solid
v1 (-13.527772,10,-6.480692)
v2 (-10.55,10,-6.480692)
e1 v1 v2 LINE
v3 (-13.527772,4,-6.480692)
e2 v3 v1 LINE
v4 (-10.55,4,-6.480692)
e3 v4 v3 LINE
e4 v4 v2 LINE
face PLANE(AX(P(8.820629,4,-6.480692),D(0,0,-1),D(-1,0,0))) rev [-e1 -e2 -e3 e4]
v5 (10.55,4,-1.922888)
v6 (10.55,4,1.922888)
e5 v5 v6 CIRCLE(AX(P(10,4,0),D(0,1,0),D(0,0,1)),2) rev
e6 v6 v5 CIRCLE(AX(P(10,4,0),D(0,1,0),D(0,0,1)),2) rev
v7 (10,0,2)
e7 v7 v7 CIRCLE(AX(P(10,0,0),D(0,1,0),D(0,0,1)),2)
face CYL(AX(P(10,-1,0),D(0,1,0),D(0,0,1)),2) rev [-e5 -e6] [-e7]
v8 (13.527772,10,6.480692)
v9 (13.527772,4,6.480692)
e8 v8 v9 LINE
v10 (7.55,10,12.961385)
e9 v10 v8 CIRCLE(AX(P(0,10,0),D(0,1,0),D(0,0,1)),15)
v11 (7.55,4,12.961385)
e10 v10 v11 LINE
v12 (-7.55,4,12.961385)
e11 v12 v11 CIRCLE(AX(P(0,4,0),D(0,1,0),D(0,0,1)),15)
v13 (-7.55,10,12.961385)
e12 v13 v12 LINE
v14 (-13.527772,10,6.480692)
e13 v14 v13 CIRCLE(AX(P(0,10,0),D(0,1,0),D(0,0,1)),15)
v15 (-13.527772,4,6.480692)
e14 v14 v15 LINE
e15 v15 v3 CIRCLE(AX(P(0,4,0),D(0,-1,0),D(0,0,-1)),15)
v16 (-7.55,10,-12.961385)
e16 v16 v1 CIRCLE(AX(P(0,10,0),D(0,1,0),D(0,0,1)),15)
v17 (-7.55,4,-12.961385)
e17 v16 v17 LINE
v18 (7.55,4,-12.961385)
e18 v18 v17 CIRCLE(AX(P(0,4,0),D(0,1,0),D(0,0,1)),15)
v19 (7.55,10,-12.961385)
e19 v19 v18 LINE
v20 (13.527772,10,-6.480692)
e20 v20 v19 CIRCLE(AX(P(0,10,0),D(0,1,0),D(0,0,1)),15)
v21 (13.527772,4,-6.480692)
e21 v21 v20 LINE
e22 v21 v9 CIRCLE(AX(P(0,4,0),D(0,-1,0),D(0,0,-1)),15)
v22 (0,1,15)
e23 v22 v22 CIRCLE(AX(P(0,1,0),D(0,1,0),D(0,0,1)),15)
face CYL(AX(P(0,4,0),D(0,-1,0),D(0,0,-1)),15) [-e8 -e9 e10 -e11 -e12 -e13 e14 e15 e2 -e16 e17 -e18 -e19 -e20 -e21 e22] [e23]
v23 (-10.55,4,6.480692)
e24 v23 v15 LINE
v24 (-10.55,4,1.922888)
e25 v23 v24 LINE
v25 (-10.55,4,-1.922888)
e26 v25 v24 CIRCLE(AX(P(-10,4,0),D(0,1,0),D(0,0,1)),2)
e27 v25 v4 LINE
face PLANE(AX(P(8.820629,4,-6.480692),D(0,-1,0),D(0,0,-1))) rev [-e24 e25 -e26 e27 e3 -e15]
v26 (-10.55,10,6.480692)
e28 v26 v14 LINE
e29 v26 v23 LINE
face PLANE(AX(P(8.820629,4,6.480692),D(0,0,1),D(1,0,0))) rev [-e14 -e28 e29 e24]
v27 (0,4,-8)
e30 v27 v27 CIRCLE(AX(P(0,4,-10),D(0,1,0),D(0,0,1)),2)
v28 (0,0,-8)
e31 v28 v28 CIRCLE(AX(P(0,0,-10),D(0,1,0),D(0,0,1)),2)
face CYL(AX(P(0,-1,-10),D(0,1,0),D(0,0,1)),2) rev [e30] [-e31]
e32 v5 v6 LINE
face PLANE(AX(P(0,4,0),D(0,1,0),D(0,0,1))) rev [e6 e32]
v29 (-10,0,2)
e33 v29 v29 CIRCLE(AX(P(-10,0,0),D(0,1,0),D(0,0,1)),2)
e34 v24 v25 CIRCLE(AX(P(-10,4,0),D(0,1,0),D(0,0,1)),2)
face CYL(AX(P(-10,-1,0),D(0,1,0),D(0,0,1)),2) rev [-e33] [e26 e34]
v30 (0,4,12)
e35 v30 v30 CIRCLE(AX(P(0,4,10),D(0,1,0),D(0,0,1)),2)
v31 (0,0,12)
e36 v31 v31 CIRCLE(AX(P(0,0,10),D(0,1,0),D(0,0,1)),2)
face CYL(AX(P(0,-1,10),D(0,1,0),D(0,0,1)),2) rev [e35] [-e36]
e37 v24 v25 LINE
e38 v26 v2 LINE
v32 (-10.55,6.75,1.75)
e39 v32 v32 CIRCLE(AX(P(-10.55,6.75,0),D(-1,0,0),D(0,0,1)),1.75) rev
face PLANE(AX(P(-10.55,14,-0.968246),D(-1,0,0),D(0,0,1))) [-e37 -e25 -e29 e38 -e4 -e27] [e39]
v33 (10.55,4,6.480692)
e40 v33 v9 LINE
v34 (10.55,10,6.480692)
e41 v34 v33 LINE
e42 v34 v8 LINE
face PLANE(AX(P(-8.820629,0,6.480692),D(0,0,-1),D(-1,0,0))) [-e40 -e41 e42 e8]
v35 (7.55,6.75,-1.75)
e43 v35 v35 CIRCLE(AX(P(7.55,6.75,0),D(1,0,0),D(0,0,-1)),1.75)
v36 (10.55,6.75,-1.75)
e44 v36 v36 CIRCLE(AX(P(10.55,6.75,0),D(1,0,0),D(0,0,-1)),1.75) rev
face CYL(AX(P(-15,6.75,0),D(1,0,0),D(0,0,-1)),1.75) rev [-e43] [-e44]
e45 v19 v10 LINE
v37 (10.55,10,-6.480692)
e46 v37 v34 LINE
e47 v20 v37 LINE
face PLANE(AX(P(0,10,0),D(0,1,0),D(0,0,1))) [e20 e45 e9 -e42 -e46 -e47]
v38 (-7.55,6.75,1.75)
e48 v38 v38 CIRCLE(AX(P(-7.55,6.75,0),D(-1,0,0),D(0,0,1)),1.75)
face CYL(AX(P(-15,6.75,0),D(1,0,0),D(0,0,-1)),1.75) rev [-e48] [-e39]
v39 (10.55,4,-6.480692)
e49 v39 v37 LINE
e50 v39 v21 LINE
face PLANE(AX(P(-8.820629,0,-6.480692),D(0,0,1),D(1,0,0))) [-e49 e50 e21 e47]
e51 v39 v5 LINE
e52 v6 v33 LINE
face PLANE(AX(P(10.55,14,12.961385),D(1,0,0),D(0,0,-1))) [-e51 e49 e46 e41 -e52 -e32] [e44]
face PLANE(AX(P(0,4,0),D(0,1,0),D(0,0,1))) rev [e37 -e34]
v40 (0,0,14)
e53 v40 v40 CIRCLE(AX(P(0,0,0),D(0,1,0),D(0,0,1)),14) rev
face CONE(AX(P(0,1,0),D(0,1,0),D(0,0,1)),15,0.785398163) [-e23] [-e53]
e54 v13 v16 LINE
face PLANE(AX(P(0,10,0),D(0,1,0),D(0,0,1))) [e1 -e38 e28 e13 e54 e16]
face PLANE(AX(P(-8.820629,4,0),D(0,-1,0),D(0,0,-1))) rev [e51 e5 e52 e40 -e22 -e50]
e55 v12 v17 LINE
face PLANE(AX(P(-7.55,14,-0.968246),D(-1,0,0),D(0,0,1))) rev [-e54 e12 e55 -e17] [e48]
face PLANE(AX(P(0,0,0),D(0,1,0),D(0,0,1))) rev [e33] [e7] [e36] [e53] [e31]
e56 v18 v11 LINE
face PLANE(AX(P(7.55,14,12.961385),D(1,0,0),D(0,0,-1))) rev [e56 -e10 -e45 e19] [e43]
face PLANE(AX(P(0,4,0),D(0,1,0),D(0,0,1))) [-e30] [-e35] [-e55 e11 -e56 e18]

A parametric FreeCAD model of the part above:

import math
import FreeCAD as App
import Part
import Sketcher
from FreeCAD import Vector
Q = App.Units.Quantity


def edges_at(feature, points):
    """Names of the edges that pass closest to the given points."""
    edges = feature.Shape.Edges
    near = lambda p: min(range(len(edges)), key=lambda i: edges[i].distToShape(Part.Vertex(*p))[0])
    return sorted({f"Edge{near(p) + 1}" for p in points})


def add_polygon(sketch, points):
    """Adds a closed chain of lines whose ends are joined by coincident constraints."""
    first, n = sketch.GeometryCount, len(points)
    for a, b in zip(points, points[1:] + points[:1]):
        sketch.addGeometry(Part.LineSegment(App.Vector(*a, 0), App.Vector(*b, 0)), False)
    for i in range(n):
        sketch.addConstraint(Sketcher.Constraint("Coincident", first + i, 2, first + (i + 1) % n, 1))

doc = App.newDocument("Part")
body = doc.addObject("PartDesign::Body", "Body")

sketch1 = body.newObject("Sketcher::SketchObject", "Sketch")
sketch1.AttachmentSupport = (doc.getObject("XZ_Plane"), [""])
sketch1.MapMode = "FlatFace"
sketch1.addGeometry(Part.Circle(Vector(0, 0, 0), Vector(0, 0, 1), 15), False)
sketch1.addConstraint([
    Sketcher.Constraint("Coincident", 0, 3, -1, 1),
    Sketcher.Constraint("Diameter", 0, Q("30 mm")),
])
pad1 = body.newObject("PartDesign::Pad", "Pad")
pad1.Profile = sketch1
pad1.Length = 4
pad1.Reversed = True

sketch2 = body.newObject("Sketcher::SketchObject", "Sketch001")
sketch2.AttachmentSupport = (doc.getObject("XZ_Plane"), [""])
sketch2.MapMode = "FlatFace"
sketch2.AttachmentOffset = App.Placement(Vector(0, 0, -4), App.Rotation())
sketch2.addGeometry([
    Part.Circle(Vector(-10, 0, 0), Vector(0, 0, 1), 2),
    Part.Circle(Vector(0, -10, 0), Vector(0, 0, 1), 2),
    Part.Circle(Vector(10, 0, 0), Vector(0, 0, 1), 2),
    Part.Circle(Vector(0, 10, 0), Vector(0, 0, 1), 2),
], False)
sketch2.addConstraint([
    Sketcher.Constraint("Equal", 0, 1),
    Sketcher.Constraint("Equal", 1, 2),
    Sketcher.Constraint("Equal", 2, 3),
    Sketcher.Constraint("Symmetric", 0, 3, 2, 3, -1, 1),
    Sketcher.Constraint("Symmetric", 1, 3, 3, 3, -1, 1),
    Sketcher.Constraint("PointOnObject", 0, 3, -1),
    Sketcher.Constraint("PointOnObject", 1, 3, -2),
    Sketcher.Constraint("Diameter", 0, Q("4 mm")),
    Sketcher.Constraint("DistanceX", 0, 3, -1, 1, Q("10 mm")),
    Sketcher.Constraint("DistanceY", 1, 3, -1, 1, Q("10 mm")),
])
pocket1 = body.newObject("PartDesign::Pocket", "Pocket")
pocket1.Profile = sketch2
pocket1.Length = 5
pocket1.Reversed = True

sketch3 = body.newObject("Sketcher::SketchObject", "Sketch002")
sketch3.AttachmentSupport = (doc.getObject("XZ_Plane"), [""])
sketch3.MapMode = "FlatFace"
sketch3.AttachmentOffset = App.Placement(Vector(0, 0, -4), App.Rotation())
sketch3.addGeometry([
    Part.LineSegment(Vector(-7.5, 13, 0), Vector(-7.5, -13, 0)),
    Part.ArcOfCircle(Part.Circle(Vector(0, 0, 0), Vector(0, 0, 1), 15), math.radians(120), math.radians(240)),
    Part.LineSegment(Vector(7.5, 1, 0), Vector(7.5, 13, 0)),
    Part.ArcOfCircle(Part.Circle(Vector(0, 0, 0), Vector(0, 0, 1), 15), math.radians(-60), math.radians(60)),
    Part.LineSegment(Vector(7.5, -13, 0), Vector(7.5, -1, 0)),
    Part.LineSegment(Vector(7.5, -1, 0), Vector(7.5, 1, 0)),
], False)
sketch3.addConstraint([
    Sketcher.Constraint("Coincident", 0, 1, 1, 1),
    Sketcher.Constraint("Coincident", 1, 2, 0, 2),
    Sketcher.Constraint("Coincident", 2, 2, 3, 2),
    Sketcher.Constraint("Coincident", 3, 1, 4, 1),
    Sketcher.Constraint("Coincident", 4, 2, 5, 1),
    Sketcher.Constraint("Coincident", 5, 2, 2, 1),
    Sketcher.Constraint("Vertical", 0),
    Sketcher.Constraint("Vertical", 2),
    Sketcher.Constraint("Vertical", 4),
    Sketcher.Constraint("Vertical", 5),
    Sketcher.Constraint("Coincident", 1, 3, -1, 1),
    Sketcher.Constraint("Coincident", 3, 3, -1, 1),
    Sketcher.Constraint("Equal", 1, 3),
    Sketcher.Constraint("Horizontal", 0, 1, 2, 2),
    Sketcher.Constraint("Equal", 2, 4),
    Sketcher.Constraint("Radius", 1, Q("15 mm")),
    Sketcher.Constraint("DistanceX", 0, 1, 2, 2, Q("15.1 mm")),
    Sketcher.Constraint("DistanceY", 2, 1, 2, 2, Q("11.993139 mm")),
])
pad2 = body.newObject("PartDesign::Pad", "Pad001")
pad2.Profile = sketch3
pad2.Length = 10
pad2.Reversed = True
doc.recompute()

chamfer = body.newObject("PartDesign::Chamfer", "Chamfer")
chamfer.Base = (pad2, edges_at(pad2, [(0, 0, -15)]))
chamfer.Size = 1

sketch4 = body.newObject("Sketcher::SketchObject", "Sketch003")
sketch4.AttachmentSupport = (doc.getObject("YZ_Plane"), [""])
sketch4.MapMode = "FlatFace"
sketch4.AttachmentOffset = App.Placement(Vector(0, 0, 15), App.Rotation())
sketch4.addGeometry(Part.Circle(Vector(6.8, 0, 0), Vector(0, 0, 1), 1.8), False)
sketch4.addConstraint([
    Sketcher.Constraint("PointOnObject", 0, 3, -1),
    Sketcher.Constraint("Diameter", 0, Q("3.5 mm")),
    Sketcher.Constraint("DistanceX", -1, 1, 0, 3, Q("6.75 mm")),
])
pocket2 = body.newObject("PartDesign::Pocket", "Pocket001")
pocket2.Profile = sketch4
pocket2.Type = "ThroughAll"

sketch5 = body.newObject("Sketcher::SketchObject", "Sketch004")
sketch5.AttachmentSupport = (doc.getObject("YZ_Plane"), [""])
sketch5.MapMode = "FlatFace"
sketch5.AttachmentOffset = App.Placement(Vector(0, 0, 15), App.Rotation())
add_polygon(sketch5, [(4, 6), (4, -6), (14, -6), (14, 6)])
sketch5.addConstraint([
    Sketcher.Constraint("Vertical", 0),
    Sketcher.Constraint("Horizontal", 1),
    Sketcher.Constraint("Vertical", 2),
    Sketcher.Constraint("Horizontal", 3),
    Sketcher.Constraint("DistanceX", 1, 1, 1, 2, Q("10 mm")),
    Sketcher.Constraint("DistanceX", -1, 1, 0, 2, Q("4 mm")),
    Sketcher.Constraint("DistanceY", 0, 2, 0, 1, Q("12.961385 mm")),
    Sketcher.Constraint("DistanceY", 0, 2, -1, 1, Q("6.480692 mm")),
])
pocket3 = body.newObject("PartDesign::Pocket", "Pocket002")
pocket3.Profile = sketch5
pocket3.Length = 4.45

sketch6 = body.newObject("Sketcher::SketchObject", "Sketch005")
sketch6.AttachmentSupport = (doc.getObject("YZ_Plane"), [""])
sketch6.MapMode = "FlatFace"
sketch6.AttachmentOffset = App.Placement(Vector(0, 0, -15), App.Rotation())
add_polygon(sketch6, [(14, -6), (4, -6), (4, 6), (14, 6)])
sketch6.addConstraint([
    Sketcher.Constraint("Horizontal", 0),
    Sketcher.Constraint("Vertical", 1),
    Sketcher.Constraint("Horizontal", 2),
    Sketcher.Constraint("Vertical", 3),
    Sketcher.Constraint("DistanceX", 0, 2, 0, 1, Q("10 mm")),
    Sketcher.Constraint("DistanceX", -1, 1, 0, 2, Q("4 mm")),
    Sketcher.Constraint("DistanceY", 1, 1, 1, 2, Q("12.961385 mm")),
    Sketcher.Constraint("DistanceY", 0, 2, -1, 1, Q("6.480692 mm")),
])
pocket4 = body.newObject("PartDesign::Pocket", "Pocket003")
pocket4.Profile = sketch6
pocket4.Length = 4.45
pocket4.Reversed = True

sketch7 = body.newObject("Sketcher::SketchObject", "Sketch006")
sketch7.AttachmentSupport = (doc.getObject("XZ_Plane"), [""])
sketch7.MapMode = "FlatFace"
sketch7.AttachmentOffset = App.Placement(Vector(0, 0, -14), App.Rotation())
sketch7.addGeometry(Part.Circle(Vector(0, 0, 0), Vector(0, 0, 1), 16), False)
sketch7.addConstraint([
    Sketcher.Constraint("Coincident", 0, 3, -1, 1),
    Sketcher.Constraint("Diameter", 0, Q("32.684438 mm")),
])
pocket5 = body.newObject("PartDesign::Pocket", "Pocket004")
pocket5.Profile = sketch7
pocket5.Length = 4
pocket5.Reversed = True

doc.recompute()
